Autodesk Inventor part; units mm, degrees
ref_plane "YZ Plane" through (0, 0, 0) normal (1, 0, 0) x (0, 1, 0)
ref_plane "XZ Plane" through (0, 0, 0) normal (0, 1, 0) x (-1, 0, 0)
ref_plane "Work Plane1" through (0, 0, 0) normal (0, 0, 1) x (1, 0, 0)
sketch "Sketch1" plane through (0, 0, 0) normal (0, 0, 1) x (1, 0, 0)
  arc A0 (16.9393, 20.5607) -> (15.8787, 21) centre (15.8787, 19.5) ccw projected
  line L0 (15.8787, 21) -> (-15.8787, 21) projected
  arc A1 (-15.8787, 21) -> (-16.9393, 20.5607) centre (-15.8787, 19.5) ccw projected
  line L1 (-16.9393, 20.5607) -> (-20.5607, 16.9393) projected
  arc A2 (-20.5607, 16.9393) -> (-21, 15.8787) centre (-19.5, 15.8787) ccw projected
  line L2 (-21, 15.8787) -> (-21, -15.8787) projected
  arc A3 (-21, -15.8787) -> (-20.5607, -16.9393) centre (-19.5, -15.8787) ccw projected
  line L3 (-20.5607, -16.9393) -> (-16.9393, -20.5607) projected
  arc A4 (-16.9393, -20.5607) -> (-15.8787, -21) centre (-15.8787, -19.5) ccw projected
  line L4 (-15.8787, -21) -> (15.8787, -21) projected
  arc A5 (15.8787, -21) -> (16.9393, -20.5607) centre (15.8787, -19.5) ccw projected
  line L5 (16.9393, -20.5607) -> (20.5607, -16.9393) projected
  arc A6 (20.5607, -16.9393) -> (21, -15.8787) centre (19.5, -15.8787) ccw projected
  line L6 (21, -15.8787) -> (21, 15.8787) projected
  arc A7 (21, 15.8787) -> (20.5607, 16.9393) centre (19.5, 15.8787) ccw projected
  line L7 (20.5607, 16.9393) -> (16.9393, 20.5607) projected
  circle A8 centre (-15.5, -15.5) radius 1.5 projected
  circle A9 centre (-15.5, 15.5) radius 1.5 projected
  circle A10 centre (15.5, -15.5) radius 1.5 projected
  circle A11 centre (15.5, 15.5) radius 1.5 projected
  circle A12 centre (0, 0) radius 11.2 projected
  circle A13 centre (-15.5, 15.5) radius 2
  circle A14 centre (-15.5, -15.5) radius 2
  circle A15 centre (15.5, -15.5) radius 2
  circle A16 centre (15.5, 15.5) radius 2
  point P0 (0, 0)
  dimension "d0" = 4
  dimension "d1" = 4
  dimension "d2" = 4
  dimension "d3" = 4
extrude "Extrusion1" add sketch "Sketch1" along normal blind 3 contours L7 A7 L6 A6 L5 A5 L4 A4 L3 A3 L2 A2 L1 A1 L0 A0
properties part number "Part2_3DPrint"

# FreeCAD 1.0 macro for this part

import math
import FreeCAD as App
import Part
import Sketcher

V = App.Vector

doc = App.newDocument("Part")
body = doc.addObject("PartDesign::Body", "Body")

# Sketch on XY plane
sketch1 = body.newObject("Sketcher::SketchObject", "Sketch")
sketch1.AttachmentSupport = (doc.getObject("XY_Plane"), [""])
sketch1.MapMode = "FlatFace"
sketch1.addGeometry(Part.LineSegment(V(20.6, 16.9, 0), V(16.9, 20.6, 0)), False)
sketch1.addGeometry(Part.ArcOfCircle(Part.Circle(V(15.9, 19.5, 0), V(0, 0, 1), 1.5), math.radians(45), math.radians(90)), False)
sketch1.addGeometry(Part.LineSegment(V(15.9, 21, 0), V(-15.9, 21, 0)), False)
sketch1.addGeometry(Part.ArcOfCircle(Part.Circle(V(-15.9, 19.5, 0), V(0, 0, 1), 1.5), math.radians(90), math.radians(135)), False)
sketch1.addGeometry(Part.LineSegment(V(-16.9, 20.6, 0), V(-20.6, 16.9, 0)), False)
sketch1.addGeometry(Part.ArcOfCircle(Part.Circle(V(-19.5, 15.9, 0), V(0, 0, 1), 1.5), math.radians(135), math.radians(180)), False)
sketch1.addGeometry(Part.LineSegment(V(-21, 15.9, 0), V(-21, -15.9, 0)), False)
sketch1.addGeometry(Part.ArcOfCircle(Part.Circle(V(-19.5, -15.9, 0), V(0, 0, 1), 1.5), math.radians(180), math.radians(225)), False)
sketch1.addGeometry(Part.LineSegment(V(-20.6, -16.9, 0), V(-16.9, -20.6, 0)), False)
sketch1.addGeometry(Part.ArcOfCircle(Part.Circle(V(-15.9, -19.5, 0), V(0, 0, 1), 1.5), math.radians(-135), math.radians(-90)), False)
sketch1.addGeometry(Part.LineSegment(V(-15.9, -21, 0), V(15.9, -21, 0)), False)
sketch1.addGeometry(Part.ArcOfCircle(Part.Circle(V(15.9, -19.5, 0), V(0, 0, 1), 1.5), math.radians(-90), math.radians(-45)), False)
sketch1.addGeometry(Part.LineSegment(V(16.9, -20.6, 0), V(20.6, -16.9, 0)), False)
sketch1.addGeometry(Part.ArcOfCircle(Part.Circle(V(19.5, -15.9, 0), V(0, 0, 1), 1.5), math.radians(-45), math.radians(0)), False)
sketch1.addGeometry(Part.LineSegment(V(21, -15.9, 0), V(21, 15.9, 0)), False)
sketch1.addGeometry(Part.ArcOfCircle(Part.Circle(V(19.5, 15.9, 0), V(0, 0, 1), 1.5), math.radians(0), math.radians(45)), False)
sketch1.addGeometry(Part.Circle(V(-15.5, -15.5, 0), V(0, 0, 1), 2), False)
sketch1.addGeometry(Part.Circle(V(15.5, -15.5, 0), V(0, 0, 1), 2), False)
sketch1.addGeometry(Part.Circle(V(-15.5, 15.5, 0), V(0, 0, 1), 2), False)
sketch1.addGeometry(Part.Circle(V(0, 0, 0), V(0, 0, 1), 11.2), False)
sketch1.addGeometry(Part.Circle(V(15.5, 15.5, 0), V(0, 0, 1), 2), False)
sketch1.addConstraint(Sketcher.Constraint("Tangent", 0, 2, 1, 1))
sketch1.addConstraint(Sketcher.Constraint("Tangent", 1, 2, 2, 1))
sketch1.addConstraint(Sketcher.Constraint("Tangent", 2, 2, 3, 1))
sketch1.addConstraint(Sketcher.Constraint("Tangent", 3, 2, 4, 1))
sketch1.addConstraint(Sketcher.Constraint("Tangent", 4, 2, 5, 1))
sketch1.addConstraint(Sketcher.Constraint("Tangent", 5, 2, 6, 1))
sketch1.addConstraint(Sketcher.Constraint("Tangent", 6, 2, 7, 1))
sketch1.addConstraint(Sketcher.Constraint("Tangent", 7, 2, 8, 1))
sketch1.addConstraint(Sketcher.Constraint("Tangent", 8, 2, 9, 1))
sketch1.addConstraint(Sketcher.Constraint("Tangent", 9, 2, 10, 1))
sketch1.addConstraint(Sketcher.Constraint("Tangent", 10, 2, 11, 1))
sketch1.addConstraint(Sketcher.Constraint("Tangent", 11, 2, 12, 1))
sketch1.addConstraint(Sketcher.Constraint("Tangent", 12, 2, 13, 1))
sketch1.addConstraint(Sketcher.Constraint("Tangent", 13, 2, 14, 1))
sketch1.addConstraint(Sketcher.Constraint("Tangent", 14, 2, 15, 1))
sketch1.addConstraint(Sketcher.Constraint("Tangent", 15, 2, 0, 1))
sketch1.addConstraint(Sketcher.Constraint("Horizontal", 2))
sketch1.addConstraint(Sketcher.Constraint("Vertical", 6))
sketch1.addConstraint(Sketcher.Constraint("Horizontal", 10))
sketch1.addConstraint(Sketcher.Constraint("Vertical", 14))
sketch1.addConstraint(Sketcher.Constraint("Coincident", 19, 3, -1, 1))
sketch1.addConstraint(Sketcher.Constraint("Equal", 1, 3))
sketch1.addConstraint(Sketcher.Constraint("Equal", 3, 5))
sketch1.addConstraint(Sketcher.Constraint("Equal", 5, 7))
sketch1.addConstraint(Sketcher.Constraint("Equal", 7, 9))
sketch1.addConstraint(Sketcher.Constraint("Equal", 9, 11))
sketch1.addConstraint(Sketcher.Constraint("Equal", 11, 13))
sketch1.addConstraint(Sketcher.Constraint("Equal", 13, 15))
sketch1.addConstraint(Sketcher.Constraint("Equal", 16, 17))
sketch1.addConstraint(Sketcher.Constraint("Equal", 17, 18))
sketch1.addConstraint(Sketcher.Constraint("Equal", 18, 20))
sketch1.addConstraint(Sketcher.Constraint("Symmetric", 1, 3, 9, 3, -1, 1))
sketch1.addConstraint(Sketcher.Constraint("Symmetric", 5, 3, 13, 3, -1, 1))
sketch1.addConstraint(Sketcher.Constraint("Symmetric", 17, 3, 18, 3, -1, 1))
sketch1.addConstraint(Sketcher.Constraint("Symmetric", 16, 3, 20, 3, -1, 1))
sketch1.addConstraint(Sketcher.Constraint("Symmetric", 16, 3, 17, 3, -2))
sketch1.addConstraint(Sketcher.Constraint("Symmetric", 0, 2, 3, 2, -2))
sketch1.addConstraint(Sketcher.Constraint("Symmetric", 8, 2, 11, 2, -2))
sketch1.addConstraint(Sketcher.Constraint("Perpendicular", 0, 4))
sketch1.addConstraint(Sketcher.Constraint("Equal", 10, 6))
sketch1.addConstraint(Sketcher.Constraint("Diameter", 16, 4.0))
sketch1.addConstraint(Sketcher.Constraint("DistanceX", 7, 3, 16, 3, 4.0))
sketch1.addConstraint(Sketcher.Constraint("DistanceY", 9, 3, 16, 3, 4.0))
sketch1.addConstraint(Sketcher.Constraint("Diameter", 19, 22.4))
sketch1.addConstraint(Sketcher.Constraint("Radius", 1, 1.5))
sketch1.addConstraint(Sketcher.Constraint("DistanceY", -1, 1, 1, 2, 21.0))
sketch1.addConstraint(Sketcher.Constraint("DistanceX", 2, 2, 2, 1, 31.7574))
pad1 = body.newObject("PartDesign::Pad", "Pad")
pad1.Profile = sketch1
pad1.Length = 3

doc.recompute()
